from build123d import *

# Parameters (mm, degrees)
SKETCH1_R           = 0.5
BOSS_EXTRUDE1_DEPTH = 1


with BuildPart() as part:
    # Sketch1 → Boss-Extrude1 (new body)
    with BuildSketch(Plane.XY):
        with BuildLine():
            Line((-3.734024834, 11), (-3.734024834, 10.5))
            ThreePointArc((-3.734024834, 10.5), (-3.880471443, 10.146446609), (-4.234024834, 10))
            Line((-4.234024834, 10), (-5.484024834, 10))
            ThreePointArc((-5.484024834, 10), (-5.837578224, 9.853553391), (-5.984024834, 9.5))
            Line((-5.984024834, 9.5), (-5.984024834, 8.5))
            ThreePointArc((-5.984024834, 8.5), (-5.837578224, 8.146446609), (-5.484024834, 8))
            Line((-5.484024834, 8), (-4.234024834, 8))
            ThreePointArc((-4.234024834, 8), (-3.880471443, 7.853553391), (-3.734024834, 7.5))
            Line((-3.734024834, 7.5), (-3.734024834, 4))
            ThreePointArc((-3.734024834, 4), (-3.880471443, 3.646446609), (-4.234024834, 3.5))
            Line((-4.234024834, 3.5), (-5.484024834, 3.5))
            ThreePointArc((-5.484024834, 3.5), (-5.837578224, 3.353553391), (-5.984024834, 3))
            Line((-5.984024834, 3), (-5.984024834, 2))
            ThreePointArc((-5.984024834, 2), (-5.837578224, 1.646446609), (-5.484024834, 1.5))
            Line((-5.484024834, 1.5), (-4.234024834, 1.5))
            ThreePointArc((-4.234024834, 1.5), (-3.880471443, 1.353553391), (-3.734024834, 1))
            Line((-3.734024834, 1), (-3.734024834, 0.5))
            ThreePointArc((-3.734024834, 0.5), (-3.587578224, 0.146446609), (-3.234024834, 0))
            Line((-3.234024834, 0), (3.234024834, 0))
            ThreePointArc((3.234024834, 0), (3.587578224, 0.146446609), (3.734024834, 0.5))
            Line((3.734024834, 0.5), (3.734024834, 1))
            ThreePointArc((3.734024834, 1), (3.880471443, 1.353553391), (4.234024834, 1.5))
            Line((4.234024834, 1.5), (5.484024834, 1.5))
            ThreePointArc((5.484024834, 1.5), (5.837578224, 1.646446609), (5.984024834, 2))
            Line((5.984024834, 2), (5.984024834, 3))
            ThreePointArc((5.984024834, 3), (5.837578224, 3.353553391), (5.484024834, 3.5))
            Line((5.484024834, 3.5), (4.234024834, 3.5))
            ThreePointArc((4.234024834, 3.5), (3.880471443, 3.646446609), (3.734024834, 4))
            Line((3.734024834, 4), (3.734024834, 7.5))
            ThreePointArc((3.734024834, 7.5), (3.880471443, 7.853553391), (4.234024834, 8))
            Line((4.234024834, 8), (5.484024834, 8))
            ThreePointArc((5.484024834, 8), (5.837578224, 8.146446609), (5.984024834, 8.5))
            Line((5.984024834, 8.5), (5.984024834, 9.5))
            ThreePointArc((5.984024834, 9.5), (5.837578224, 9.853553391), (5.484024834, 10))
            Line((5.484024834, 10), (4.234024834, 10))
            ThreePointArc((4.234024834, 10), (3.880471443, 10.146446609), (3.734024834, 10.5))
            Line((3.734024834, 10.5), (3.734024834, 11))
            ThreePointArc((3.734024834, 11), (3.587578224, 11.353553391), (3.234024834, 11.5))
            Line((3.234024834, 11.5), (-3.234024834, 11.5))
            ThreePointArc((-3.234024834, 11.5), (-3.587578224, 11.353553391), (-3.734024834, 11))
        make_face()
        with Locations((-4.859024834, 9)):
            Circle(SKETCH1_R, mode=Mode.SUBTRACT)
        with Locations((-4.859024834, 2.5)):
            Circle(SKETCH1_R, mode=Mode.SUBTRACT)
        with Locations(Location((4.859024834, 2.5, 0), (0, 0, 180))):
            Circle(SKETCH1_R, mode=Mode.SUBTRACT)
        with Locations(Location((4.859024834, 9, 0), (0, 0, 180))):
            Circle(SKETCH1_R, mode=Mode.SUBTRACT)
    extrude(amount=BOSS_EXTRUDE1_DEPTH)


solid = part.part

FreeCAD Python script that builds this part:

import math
import FreeCAD as App
import Part
import Sketcher
from FreeCAD import Vector
Q = App.Units.Quantity

doc = App.newDocument("Part")
body = doc.addObject("PartDesign::Body", "Body")

# Sketch on XY plane
sketch1 = doc.addObject("Sketcher::SketchObject", "Sketch")
body.addObject(sketch1)
sketch1.AttachmentSupport = (doc.XY_Plane, [""])
sketch1.MapMode = "FlatFace"
sketch1.addGeometry(Part.LineSegment(Vector(-3.73, 11, 0), Vector(-3.73, 10.5, 0)), False)
sketch1.addGeometry(Part.ArcOfCircle(Part.Circle(Vector(-4.23, 10.5, 0), Vector(0, 0, 1), 0.5), math.radians(-90), math.radians(0)), False)
sketch1.addGeometry(Part.LineSegment(Vector(-4.23, 10, 0), Vector(-5.48, 10, 0)), False)
sketch1.addGeometry(Part.ArcOfCircle(Part.Circle(Vector(-5.48, 9.5, 0), Vector(0, 0, 1), 0.5), math.radians(90), math.radians(180)), False)
sketch1.addGeometry(Part.LineSegment(Vector(-5.98, 9.5, 0), Vector(-5.98, 8.5, 0)), False)
sketch1.addGeometry(Part.ArcOfCircle(Part.Circle(Vector(-5.48, 8.5, 0), Vector(0, 0, 1), 0.5), math.radians(180), math.radians(270)), False)
sketch1.addGeometry(Part.LineSegment(Vector(-5.48, 8, 0), Vector(-4.23, 8, 0)), False)
sketch1.addGeometry(Part.ArcOfCircle(Part.Circle(Vector(-4.23, 7.5, 0), Vector(0, 0, 1), 0.5), math.radians(0), math.radians(90)), False)
sketch1.addGeometry(Part.LineSegment(Vector(-3.73, 7.5, 0), Vector(-3.73, 4, 0)), False)
sketch1.addGeometry(Part.ArcOfCircle(Part.Circle(Vector(-4.23, 4, 0), Vector(0, 0, 1), 0.5), math.radians(-90), math.radians(0)), False)
sketch1.addGeometry(Part.LineSegment(Vector(-4.23, 3.5, 0), Vector(-5.48, 3.5, 0)), False)
sketch1.addGeometry(Part.ArcOfCircle(Part.Circle(Vector(-5.48, 3, 0), Vector(0, 0, 1), 0.5), math.radians(90), math.radians(180)), False)
sketch1.addGeometry(Part.LineSegment(Vector(-5.98, 3, 0), Vector(-5.98, 2, 0)), False)
sketch1.addGeometry(Part.ArcOfCircle(Part.Circle(Vector(-5.48, 2, 0), Vector(0, 0, 1), 0.5), math.radians(180), math.radians(270)), False)
sketch1.addGeometry(Part.LineSegment(Vector(-5.48, 1.5, 0), Vector(-4.23, 1.5, 0)), False)
sketch1.addGeometry(Part.ArcOfCircle(Part.Circle(Vector(-4.23, 1, 0), Vector(0, 0, 1), 0.5), math.radians(0), math.radians(90)), False)
sketch1.addGeometry(Part.LineSegment(Vector(-3.73, 1, 0), Vector(-3.73, 0.5, 0)), False)
sketch1.addGeometry(Part.ArcOfCircle(Part.Circle(Vector(-3.23, 0.5, 0), Vector(0, 0, 1), 0.5), math.radians(180), math.radians(270)), False)
sketch1.addGeometry(Part.LineSegment(Vector(-3.23, 0, 0), Vector(3.23, 0, 0)), False)
sketch1.addGeometry(Part.ArcOfCircle(Part.Circle(Vector(3.23, 0.5, 0), Vector(0, 0, 1), 0.5), math.radians(-90), math.radians(0)), False)
sketch1.addGeometry(Part.LineSegment(Vector(3.73, 0.5, 0), Vector(3.73, 1, 0)), False)
sketch1.addGeometry(Part.ArcOfCircle(Part.Circle(Vector(4.23, 1, 0), Vector(0, 0, 1), 0.5), math.radians(90), math.radians(180)), False)
sketch1.addGeometry(Part.LineSegment(Vector(4.23, 1.5, 0), Vector(5.48, 1.5, 0)), False)
sketch1.addGeometry(Part.ArcOfCircle(Part.Circle(Vector(5.48, 2, 0), Vector(0, 0, 1), 0.5), math.radians(-90), math.radians(0)), False)
sketch1.addGeometry(Part.LineSegment(Vector(5.98, 2, 0), Vector(5.98, 3, 0)), False)
sketch1.addGeometry(Part.ArcOfCircle(Part.Circle(Vector(5.48, 3, 0), Vector(0, 0, 1), 0.5), math.radians(0), math.radians(90)), False)
sketch1.addGeometry(Part.LineSegment(Vector(5.48, 3.5, 0), Vector(4.23, 3.5, 0)), False)
sketch1.addGeometry(Part.ArcOfCircle(Part.Circle(Vector(4.23, 4, 0), Vector(0, 0, 1), 0.5), math.radians(180), math.radians(270)), False)
sketch1.addGeometry(Part.LineSegment(Vector(3.73, 4, 0), Vector(3.73, 7.5, 0)), False)
sketch1.addGeometry(Part.ArcOfCircle(Part.Circle(Vector(4.23, 7.5, 0), Vector(0, 0, 1), 0.5), math.radians(90), math.radians(180)), False)
sketch1.addGeometry(Part.LineSegment(Vector(4.23, 8, 0), Vector(5.48, 8, 0)), False)
sketch1.addGeometry(Part.ArcOfCircle(Part.Circle(Vector(5.48, 8.5, 0), Vector(0, 0, 1), 0.5), math.radians(-90), math.radians(0)), False)
sketch1.addGeometry(Part.LineSegment(Vector(5.98, 8.5, 0), Vector(5.98, 9.5, 0)), False)
sketch1.addGeometry(Part.ArcOfCircle(Part.Circle(Vector(5.48, 9.5, 0), Vector(0, 0, 1), 0.5), math.radians(0), math.radians(90)), False)
sketch1.addGeometry(Part.LineSegment(Vector(5.48, 10, 0), Vector(4.23, 10, 0)), False)
sketch1.addGeometry(Part.ArcOfCircle(Part.Circle(Vector(4.23, 10.5, 0), Vector(0, 0, 1), 0.5), math.radians(180), math.radians(270)), False)
sketch1.addGeometry(Part.LineSegment(Vector(3.73, 10.5, 0), Vector(3.73, 11, 0)), False)
sketch1.addGeometry(Part.ArcOfCircle(Part.Circle(Vector(3.23, 11, 0), Vector(0, 0, 1), 0.5), math.radians(0), math.radians(90)), False)
sketch1.addGeometry(Part.LineSegment(Vector(3.23, 11.5, 0), Vector(-3.23, 11.5, 0)), False)
sketch1.addGeometry(Part.ArcOfCircle(Part.Circle(Vector(-3.23, 11, 0), Vector(0, 0, 1), 0.5), math.radians(90), math.radians(180)), False)
sketch1.addGeometry(Part.Circle(Vector(-4.86, 2.5, 0), Vector(0, 0, 1), 0.5), False)
sketch1.addGeometry(Part.Circle(Vector(4.86, 2.5, 0), Vector(0, 0, 1), 0.5), False)
sketch1.addGeometry(Part.Circle(Vector(-4.86, 9, 0), Vector(0, 0, 1), 0.5), False)
sketch1.addGeometry(Part.Circle(Vector(4.86, 9, 0), Vector(0, 0, 1), 0.5), False)
sketch1.addConstraint(Sketcher.Constraint("Tangent", 0, 2, 1, 2))
sketch1.addConstraint(Sketcher.Constraint("Tangent", 1, 1, 2, 1))
sketch1.addConstraint(Sketcher.Constraint("Tangent", 2, 2, 3, 1))
sketch1.addConstraint(Sketcher.Constraint("Tangent", 3, 2, 4, 1))
sketch1.addConstraint(Sketcher.Constraint("Tangent", 4, 2, 5, 1))
sketch1.addConstraint(Sketcher.Constraint("Tangent", 5, 2, 6, 1))
sketch1.addConstraint(Sketcher.Constraint("Tangent", 6, 2, 7, 2))
sketch1.addConstraint(Sketcher.Constraint("Tangent", 7, 1, 8, 1))
sketch1.addConstraint(Sketcher.Constraint("Tangent", 8, 2, 9, 2))
sketch1.addConstraint(Sketcher.Constraint("Tangent", 9, 1, 10, 1))
sketch1.addConstraint(Sketcher.Constraint("Tangent", 10, 2, 11, 1))
sketch1.addConstraint(Sketcher.Constraint("Tangent", 11, 2, 12, 1))
sketch1.addConstraint(Sketcher.Constraint("Tangent", 12, 2, 13, 1))
sketch1.addConstraint(Sketcher.Constraint("Tangent", 13, 2, 14, 1))
sketch1.addConstraint(Sketcher.Constraint("Tangent", 14, 2, 15, 2))
sketch1.addConstraint(Sketcher.Constraint("Tangent", 15, 1, 16, 1))
sketch1.addConstraint(Sketcher.Constraint("Tangent", 16, 2, 17, 1))
sketch1.addConstraint(Sketcher.Constraint("Tangent", 17, 2, 18, 1))
sketch1.addConstraint(Sketcher.Constraint("Tangent", 18, 2, 19, 1))
sketch1.addConstraint(Sketcher.Constraint("Tangent", 19, 2, 20, 1))
sketch1.addConstraint(Sketcher.Constraint("Tangent", 20, 2, 21, 2))
sketch1.addConstraint(Sketcher.Constraint("Tangent", 21, 1, 22, 1))
sketch1.addConstraint(Sketcher.Constraint("Tangent", 22, 2, 23, 1))
sketch1.addConstraint(Sketcher.Constraint("Tangent", 23, 2, 24, 1))
sketch1.addConstraint(Sketcher.Constraint("Tangent", 24, 2, 25, 1))
sketch1.addConstraint(Sketcher.Constraint("Tangent", 25, 2, 26, 1))
sketch1.addConstraint(Sketcher.Constraint("Tangent", 26, 2, 27, 2))
sketch1.addConstraint(Sketcher.Constraint("Tangent", 27, 1, 28, 1))
sketch1.addConstraint(Sketcher.Constraint("Tangent", 28, 2, 29, 2))
sketch1.addConstraint(Sketcher.Constraint("Tangent", 29, 1, 30, 1))
sketch1.addConstraint(Sketcher.Constraint("Tangent", 30, 2, 31, 1))
sketch1.addConstraint(Sketcher.Constraint("Tangent", 31, 2, 32, 1))
sketch1.addConstraint(Sketcher.Constraint("Tangent", 32, 2, 33, 1))
sketch1.addConstraint(Sketcher.Constraint("Tangent", 33, 2, 34, 1))
sketch1.addConstraint(Sketcher.Constraint("Tangent", 34, 2, 35, 2))
sketch1.addConstraint(Sketcher.Constraint("Tangent", 35, 1, 36, 1))
sketch1.addConstraint(Sketcher.Constraint("Tangent", 36, 2, 37, 1))
sketch1.addConstraint(Sketcher.Constraint("Tangent", 37, 2, 38, 1))
sketch1.addConstraint(Sketcher.Constraint("Tangent", 38, 2, 39, 1))
sketch1.addConstraint(Sketcher.Constraint("Tangent", 39, 2, 0, 1))
sketch1.addConstraint(Sketcher.Constraint("Vertical", 0))
sketch1.addConstraint(Sketcher.Constraint("Horizontal", 2))
sketch1.addConstraint(Sketcher.Constraint("Vertical", 4))
sketch1.addConstraint(Sketcher.Constraint("Horizontal", 6))
sketch1.addConstraint(Sketcher.Constraint("Vertical", 8))
sketch1.addConstraint(Sketcher.Constraint("Horizontal", 10))
sketch1.addConstraint(Sketcher.Constraint("Vertical", 12))
sketch1.addConstraint(Sketcher.Constraint("Horizontal", 14))
sketch1.addConstraint(Sketcher.Constraint("Vertical", 16))
sketch1.addConstraint(Sketcher.Constraint("Horizontal", 18))
sketch1.addConstraint(Sketcher.Constraint("Vertical", 20))
sketch1.addConstraint(Sketcher.Constraint("Horizontal", 22))
sketch1.addConstraint(Sketcher.Constraint("Vertical", 24))
sketch1.addConstraint(Sketcher.Constraint("Horizontal", 26))
sketch1.addConstraint(Sketcher.Constraint("Vertical", 28))
sketch1.addConstraint(Sketcher.Constraint("Horizontal", 30))
sketch1.addConstraint(Sketcher.Constraint("Vertical", 32))
sketch1.addConstraint(Sketcher.Constraint("Horizontal", 34))
sketch1.addConstraint(Sketcher.Constraint("Vertical", 36))
sketch1.addConstraint(Sketcher.Constraint("Horizontal", 38))
sketch1.addConstraint(Sketcher.Constraint("Equal", 1, 3))
sketch1.addConstraint(Sketcher.Constraint("Equal", 3, 5))
sketch1.addConstraint(Sketcher.Constraint("Equal", 5, 7))
sketch1.addConstraint(Sketcher.Constraint("Equal", 7, 9))
sketch1.addConstraint(Sketcher.Constraint("Equal", 9, 11))
sketch1.addConstraint(Sketcher.Constraint("Equal", 11, 13))
sketch1.addConstraint(Sketcher.Constraint("Equal", 13, 15))
sketch1.addConstraint(Sketcher.Constraint("Equal", 15, 17))
sketch1.addConstraint(Sketcher.Constraint("Equal", 17, 19))
sketch1.addConstraint(Sketcher.Constraint("Equal", 19, 21))
sketch1.addConstraint(Sketcher.Constraint("Equal", 21, 23))
sketch1.addConstraint(Sketcher.Constraint("Equal", 23, 25))
sketch1.addConstraint(Sketcher.Constraint("Equal", 25, 27))
sketch1.addConstraint(Sketcher.Constraint("Equal", 27, 29))
sketch1.addConstraint(Sketcher.Constraint("Equal", 29, 31))
sketch1.addConstraint(Sketcher.Constraint("Equal", 31, 33))
sketch1.addConstraint(Sketcher.Constraint("Equal", 33, 35))
sketch1.addConstraint(Sketcher.Constraint("Equal", 35, 37))
sketch1.addConstraint(Sketcher.Constraint("Equal", 37, 39))
sketch1.addConstraint(Sketcher.Constraint("Equal", 39, 40))
sketch1.addConstraint(Sketcher.Constraint("Equal", 40, 41))
sketch1.addConstraint(Sketcher.Constraint("Equal", 41, 42))
sketch1.addConstraint(Sketcher.Constraint("Equal", 42, 43))
sketch1.addConstraint(Sketcher.Constraint("Symmetric", 17, 2, 18, 2, -1, 1))
sketch1.addConstraint(Sketcher.Constraint("Symmetric", 13, 3, 23, 3, -2))
sketch1.addConstraint(Sketcher.Constraint("Symmetric", 9, 3, 27, 3, -2))
sketch1.addConstraint(Sketcher.Constraint("Symmetric", 5, 3, 31, 3, -2))
sketch1.addConstraint(Sketcher.Constraint("Symmetric", 1, 3, 35, 3, -2))
sketch1.addConstraint(Sketcher.Constraint("Symmetric", 40, 3, 41, 3, -2))
sketch1.addConstraint(Sketcher.Constraint("Symmetric", 42, 3, 43, 3, -2))
sketch1.addConstraint(Sketcher.Constraint("Vertical", 1, 3, 7, 3))
sketch1.addConstraint(Sketcher.Constraint("Vertical", 5, 3, 11, 3))
sketch1.addConstraint(Sketcher.Constraint("Vertical", 9, 3, 15, 3))
sketch1.addConstraint(Sketcher.Constraint("Vertical", 40, 3, 42, 3))
sketch1.addConstraint(Sketcher.Constraint("Equal", 4, 12))
sketch1.addConstraint(Sketcher.Constraint("Equal", 0, 16))
sketch1.addConstraint(Sketcher.Constraint("Diameter", 40, Q("1 mm")))
sketch1.addConstraint(Sketcher.Constraint("DistanceY", 4, 2, 4, 1, Q("1 mm")))
sketch1.addConstraint(Sketcher.Constraint("DistanceY", 0, 2, 0, 1, Q("0.5 mm")))
sketch1.addConstraint(Sketcher.Constraint("DistanceY", 8, 2, 8, 1, Q("3.5 mm")))
sketch1.addConstraint(Sketcher.Constraint("DistanceY", -1, 1, 42, 3, Q("9 mm")))
sketch1.addConstraint(Sketcher.Constraint("DistanceX", 2, 2, 2, 1, Q("1.25 mm")))
sketch1.addConstraint(Sketcher.Constraint("DistanceY", -1, 1, 40, 3, Q("2.5 mm")))
sketch1.addConstraint(Sketcher.Constraint("DistanceX", 18, 1, 18, 2, Q("6.46805 mm")))
sketch1.addConstraint(Sketcher.Constraint("DistanceX", 40, 3, -1, 1, Q("4.859025 mm")))
pad1 = doc.addObject("PartDesign::Pad", "Pad")
body.addObject(pad1)
pad1.Profile = sketch1
pad1.Length = 1

doc.recompute()
